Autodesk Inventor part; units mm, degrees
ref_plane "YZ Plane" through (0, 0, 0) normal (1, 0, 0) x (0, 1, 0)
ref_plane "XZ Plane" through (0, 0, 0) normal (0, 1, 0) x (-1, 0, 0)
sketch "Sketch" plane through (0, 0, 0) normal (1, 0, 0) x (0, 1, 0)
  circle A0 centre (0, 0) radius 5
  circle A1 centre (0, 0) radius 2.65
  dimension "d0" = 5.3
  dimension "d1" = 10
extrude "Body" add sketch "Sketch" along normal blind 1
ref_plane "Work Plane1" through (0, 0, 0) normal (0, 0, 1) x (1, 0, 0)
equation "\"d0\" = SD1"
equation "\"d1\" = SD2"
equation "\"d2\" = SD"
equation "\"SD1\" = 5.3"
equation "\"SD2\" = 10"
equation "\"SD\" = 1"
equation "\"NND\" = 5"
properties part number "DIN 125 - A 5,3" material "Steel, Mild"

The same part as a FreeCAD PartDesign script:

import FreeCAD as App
import Part
import Sketcher

V = App.Vector

doc = App.newDocument("Part")
params = doc.addObject("Spreadsheet::Sheet", "Params")
for row, (alias, value) in enumerate([
    ("sketch1_diameter", "10 mm"),
    ("sketch1_diameter2", "5.3 mm"),
    ("pad1_length", "1 mm"),
], start=1):
    params.set(f"A{row}", alias)
    params.set(f"B{row}", "=" + value)
    params.setAlias(f"B{row}", alias)

body = doc.addObject("PartDesign::Body", "Body")

# Sketch on YZ plane
sketch1 = doc.addObject("Sketcher::SketchObject", "Sketch")
body.addObject(sketch1)
sketch1.AttachmentSupport = (doc.YZ_Plane, [""])
sketch1.MapMode = "FlatFace"
sketch1.addGeometry(Part.Circle(V(0, 0, 0), V(0, 0, 1), 5), False)
sketch1.addGeometry(Part.Circle(V(0, 0, 0), V(0, 0, 1), 2.6), False)
sketch1.addConstraint(Sketcher.Constraint("Coincident", 0, 3, -1, 1))
sketch1.addConstraint(Sketcher.Constraint("Coincident", 1, 3, -1, 1))
sketch1.addConstraint(Sketcher.Constraint("Diameter", 0, 10.0))
sketch1.addConstraint(Sketcher.Constraint("Diameter", 1, 5.3))
sketch1.setExpression("Constraints[2]", "Params.sketch1_diameter")
sketch1.setExpression("Constraints[3]", "Params.sketch1_diameter2")
pad1 = doc.addObject("PartDesign::Pad", "Pad")
body.addObject(pad1)
pad1.Profile = sketch1
pad1.setExpression("Length", "Params.pad1_length")

doc.recompute()
